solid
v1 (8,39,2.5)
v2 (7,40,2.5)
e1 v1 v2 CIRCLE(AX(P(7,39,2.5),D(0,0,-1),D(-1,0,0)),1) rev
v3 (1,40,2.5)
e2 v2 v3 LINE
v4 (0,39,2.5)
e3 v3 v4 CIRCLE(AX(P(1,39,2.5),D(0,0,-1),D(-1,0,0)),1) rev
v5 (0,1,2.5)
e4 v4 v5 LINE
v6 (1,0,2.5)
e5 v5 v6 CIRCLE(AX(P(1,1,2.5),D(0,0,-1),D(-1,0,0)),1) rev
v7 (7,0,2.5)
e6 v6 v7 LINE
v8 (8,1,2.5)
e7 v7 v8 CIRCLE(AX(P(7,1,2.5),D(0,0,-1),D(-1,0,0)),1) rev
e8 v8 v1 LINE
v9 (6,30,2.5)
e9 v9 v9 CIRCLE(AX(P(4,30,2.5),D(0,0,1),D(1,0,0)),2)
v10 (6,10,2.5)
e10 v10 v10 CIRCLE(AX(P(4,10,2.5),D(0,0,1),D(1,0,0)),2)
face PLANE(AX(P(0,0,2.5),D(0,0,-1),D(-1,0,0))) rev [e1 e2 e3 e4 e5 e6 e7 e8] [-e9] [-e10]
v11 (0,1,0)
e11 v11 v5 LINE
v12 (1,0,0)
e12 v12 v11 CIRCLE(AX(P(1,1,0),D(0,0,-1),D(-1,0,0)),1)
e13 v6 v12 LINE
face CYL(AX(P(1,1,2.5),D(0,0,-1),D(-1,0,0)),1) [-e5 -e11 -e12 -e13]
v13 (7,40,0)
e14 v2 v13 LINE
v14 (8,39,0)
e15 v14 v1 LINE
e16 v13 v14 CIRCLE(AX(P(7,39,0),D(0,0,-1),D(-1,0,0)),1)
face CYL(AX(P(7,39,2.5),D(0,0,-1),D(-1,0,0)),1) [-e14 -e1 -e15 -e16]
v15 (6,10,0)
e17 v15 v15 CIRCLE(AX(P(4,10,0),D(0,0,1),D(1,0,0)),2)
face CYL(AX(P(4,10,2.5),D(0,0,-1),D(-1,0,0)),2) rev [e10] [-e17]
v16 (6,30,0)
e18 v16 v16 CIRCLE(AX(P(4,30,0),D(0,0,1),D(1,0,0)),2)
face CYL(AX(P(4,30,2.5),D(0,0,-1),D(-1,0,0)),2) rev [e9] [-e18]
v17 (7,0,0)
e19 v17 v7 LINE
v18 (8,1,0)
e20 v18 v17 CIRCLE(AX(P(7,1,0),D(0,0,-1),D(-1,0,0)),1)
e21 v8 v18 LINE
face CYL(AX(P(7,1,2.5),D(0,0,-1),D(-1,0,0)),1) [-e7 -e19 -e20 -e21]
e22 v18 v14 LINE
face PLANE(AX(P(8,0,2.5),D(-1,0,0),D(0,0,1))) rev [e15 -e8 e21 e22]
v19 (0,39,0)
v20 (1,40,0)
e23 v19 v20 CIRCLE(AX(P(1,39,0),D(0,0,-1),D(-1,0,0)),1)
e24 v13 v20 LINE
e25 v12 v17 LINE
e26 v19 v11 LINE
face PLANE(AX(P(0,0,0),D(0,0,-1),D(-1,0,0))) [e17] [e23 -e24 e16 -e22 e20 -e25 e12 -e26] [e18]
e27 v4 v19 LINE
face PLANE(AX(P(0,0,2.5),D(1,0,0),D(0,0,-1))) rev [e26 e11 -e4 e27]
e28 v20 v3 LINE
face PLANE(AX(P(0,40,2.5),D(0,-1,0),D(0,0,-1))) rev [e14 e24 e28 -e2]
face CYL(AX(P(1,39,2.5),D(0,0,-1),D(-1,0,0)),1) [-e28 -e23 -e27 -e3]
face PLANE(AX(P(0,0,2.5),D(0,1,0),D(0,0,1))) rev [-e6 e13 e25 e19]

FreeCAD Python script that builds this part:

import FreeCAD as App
import Part
import Sketcher


def edges_at(feature, points):
    """Names of the edges that pass closest to the given points."""
    edges = feature.Shape.Edges
    near = lambda p: min(range(len(edges)), key=lambda i: edges[i].distToShape(Part.Vertex(*p))[0])
    return sorted({f"Edge{near(p) + 1}" for p in points})

doc = App.newDocument("Part")
body = doc.addObject("PartDesign::Body", "Body")

sketch1 = doc.addObject("Sketcher::SketchObject", "Sketch")
body.addObject(sketch1)
sketch1.AttachmentSupport = (doc.XY_Plane, [""])
sketch1.MapMode = "FlatFace"
sketch1.addGeometry(Part.LineSegment(App.Vector(0, 40, 0), App.Vector(0, 0, 0)), False)
sketch1.addGeometry(Part.LineSegment(App.Vector(0, 0, 0), App.Vector(8, 0, 0)), False)
sketch1.addGeometry(Part.LineSegment(App.Vector(8, 0, 0), App.Vector(8, 40, 0)), False)
sketch1.addGeometry(Part.LineSegment(App.Vector(8, 40, 0), App.Vector(0, 40, 0)), False)
sketch1.addGeometry(Part.Circle(App.Vector(4, 10, 0), App.Vector(0, 0, 1), 2), False)
sketch1.addGeometry(Part.Circle(App.Vector(4, 30, 0), App.Vector(0, 0, 1), 2), False)
sketch1.addConstraint(Sketcher.Constraint("Coincident", 0, 2, 1, 1))
sketch1.addConstraint(Sketcher.Constraint("Coincident", 1, 2, 2, 1))
sketch1.addConstraint(Sketcher.Constraint("Coincident", 2, 2, 3, 1))
sketch1.addConstraint(Sketcher.Constraint("Coincident", 3, 2, 0, 1))
sketch1.addConstraint(Sketcher.Constraint("Vertical", 0))
sketch1.addConstraint(Sketcher.Constraint("Horizontal", 1))
sketch1.addConstraint(Sketcher.Constraint("Vertical", 2))
sketch1.addConstraint(Sketcher.Constraint("Horizontal", 3))
sketch1.addConstraint(Sketcher.Constraint("Coincident", 0, 2, -1, 1))
sketch1.addConstraint(Sketcher.Constraint("Equal", 4, 5))
sketch1.addConstraint(Sketcher.Constraint("Vertical", 4, 3, 5, 3))
sketch1.addConstraint(Sketcher.Constraint("Diameter", 4, 4.0))
sketch1.addConstraint(Sketcher.Constraint("DistanceX", 1, 1, 1, 2, 8.0))
sketch1.addConstraint(Sketcher.Constraint("DistanceY", 0, 2, 0, 1, 40.0))
sketch1.addConstraint(Sketcher.Constraint("DistanceX", -1, 1, 4, 3, 4.0))
sketch1.addConstraint(Sketcher.Constraint("DistanceY", -1, 1, 4, 3, 10.0))
sketch1.addConstraint(Sketcher.Constraint("DistanceY", -1, 1, 5, 3, 30.0))
pad1 = doc.addObject("PartDesign::Pad", "Pad")
body.addObject(pad1)
pad1.Profile = sketch1
pad1.Length = 2.5
doc.recompute()

fillet = doc.addObject("PartDesign::Fillet", "Fillet")
body.addObject(fillet)
fillet.Base = (pad1, edges_at(pad1, [
    (0, 40, 1.25),
    (8, 40, 1.25),
    (8, 0, 1.25),
    (0, 0, 1.25),
]))
fillet.Radius = 1

doc.recompute()
